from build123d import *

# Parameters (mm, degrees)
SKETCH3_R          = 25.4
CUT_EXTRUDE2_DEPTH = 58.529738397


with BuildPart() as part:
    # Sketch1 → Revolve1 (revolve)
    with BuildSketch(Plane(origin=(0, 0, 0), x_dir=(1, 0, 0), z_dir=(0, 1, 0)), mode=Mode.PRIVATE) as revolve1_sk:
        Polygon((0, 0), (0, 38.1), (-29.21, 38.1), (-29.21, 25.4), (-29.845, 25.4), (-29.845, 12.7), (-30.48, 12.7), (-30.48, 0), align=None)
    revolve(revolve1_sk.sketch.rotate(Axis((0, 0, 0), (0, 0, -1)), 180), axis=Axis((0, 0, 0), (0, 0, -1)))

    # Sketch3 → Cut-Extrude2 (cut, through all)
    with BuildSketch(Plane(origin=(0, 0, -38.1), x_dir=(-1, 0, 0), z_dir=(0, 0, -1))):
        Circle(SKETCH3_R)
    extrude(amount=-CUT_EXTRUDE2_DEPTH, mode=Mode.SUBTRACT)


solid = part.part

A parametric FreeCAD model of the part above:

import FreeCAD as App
import Part
import Sketcher
from FreeCAD import Vector
Q = App.Units.Quantity


def add_polygon(sketch, points):
    """Adds a closed chain of lines whose ends are joined by coincident constraints."""
    first, n = sketch.GeometryCount, len(points)
    for a, b in zip(points, points[1:] + points[:1]):
        sketch.addGeometry(Part.LineSegment(App.Vector(*a, 0), App.Vector(*b, 0)), False)
    for i in range(n):
        sketch.addConstraint(Sketcher.Constraint("Coincident", first + i, 2, first + (i + 1) % n, 1))

doc = App.newDocument("Part")
body = doc.addObject("PartDesign::Body", "Body")

sketch1 = body.newObject("Sketcher::SketchObject", "Sketch")
sketch1.AttachmentSupport = (doc.getObject("XZ_Plane"), [""])
sketch1.MapMode = "FlatFace"
add_polygon(sketch1, [(0, 0), (0, -38.1), (-29.2, -38.1), (-29.2, -25.4), (-29.8, -25.4), (-29.8, -12.7), (-30.5, -12.7), (-30.5, 0)])
sketch1.addConstraint([
    Sketcher.Constraint("Vertical", 0),
    Sketcher.Constraint("Horizontal", 1),
    Sketcher.Constraint("Vertical", 2),
    Sketcher.Constraint("Horizontal", 3),
    Sketcher.Constraint("Vertical", 4),
    Sketcher.Constraint("Horizontal", 5),
    Sketcher.Constraint("Vertical", 6),
    Sketcher.Constraint("Horizontal", 7),
    Sketcher.Constraint("Coincident", 7, 2, -1, 1),
    Sketcher.Constraint("Equal", 3, 5),
    Sketcher.Constraint("Equal", 2, 4),
    Sketcher.Constraint("Equal", 4, 6),
    Sketcher.Constraint("DistanceX", 7, 1, 7, 2, Q("1.2 in")),
    Sketcher.Constraint("DistanceY", 0, 2, 0, 1, Q("1.5 in")),
    Sketcher.Constraint("DistanceX", 1, 2, 1, 1, Q("1.15 in")),
])
revolution = body.newObject("PartDesign::Revolution", "Revolution")
revolution.Profile = sketch1
revolution.ReferenceAxis = (sketch1, ["V_Axis"])
revolution.Angle = 360

sketch2 = body.newObject("Sketcher::SketchObject", "Sketch001")
sketch2.AttachmentSupport = (doc.getObject("XY_Plane"), [""])
sketch2.MapMode = "FlatFace"
sketch2.AttachmentOffset = App.Placement(Vector(0, 0, -1.5 * 25.4), App.Rotation())
sketch2.addGeometry(Part.Circle(Vector(0, 0, 0), Vector(0, 0, 1), 25), False)
sketch2.addConstraint([
    Sketcher.Constraint("Coincident", 0, 3, -1, 1),
    Sketcher.Constraint("Diameter", 0, Q("2 in")),
])
pocket1 = body.newObject("PartDesign::Pocket", "Pocket")
pocket1.Profile = sketch2
pocket1.Type = "ThroughAll"
pocket1.Reversed = True

doc.recompute()
